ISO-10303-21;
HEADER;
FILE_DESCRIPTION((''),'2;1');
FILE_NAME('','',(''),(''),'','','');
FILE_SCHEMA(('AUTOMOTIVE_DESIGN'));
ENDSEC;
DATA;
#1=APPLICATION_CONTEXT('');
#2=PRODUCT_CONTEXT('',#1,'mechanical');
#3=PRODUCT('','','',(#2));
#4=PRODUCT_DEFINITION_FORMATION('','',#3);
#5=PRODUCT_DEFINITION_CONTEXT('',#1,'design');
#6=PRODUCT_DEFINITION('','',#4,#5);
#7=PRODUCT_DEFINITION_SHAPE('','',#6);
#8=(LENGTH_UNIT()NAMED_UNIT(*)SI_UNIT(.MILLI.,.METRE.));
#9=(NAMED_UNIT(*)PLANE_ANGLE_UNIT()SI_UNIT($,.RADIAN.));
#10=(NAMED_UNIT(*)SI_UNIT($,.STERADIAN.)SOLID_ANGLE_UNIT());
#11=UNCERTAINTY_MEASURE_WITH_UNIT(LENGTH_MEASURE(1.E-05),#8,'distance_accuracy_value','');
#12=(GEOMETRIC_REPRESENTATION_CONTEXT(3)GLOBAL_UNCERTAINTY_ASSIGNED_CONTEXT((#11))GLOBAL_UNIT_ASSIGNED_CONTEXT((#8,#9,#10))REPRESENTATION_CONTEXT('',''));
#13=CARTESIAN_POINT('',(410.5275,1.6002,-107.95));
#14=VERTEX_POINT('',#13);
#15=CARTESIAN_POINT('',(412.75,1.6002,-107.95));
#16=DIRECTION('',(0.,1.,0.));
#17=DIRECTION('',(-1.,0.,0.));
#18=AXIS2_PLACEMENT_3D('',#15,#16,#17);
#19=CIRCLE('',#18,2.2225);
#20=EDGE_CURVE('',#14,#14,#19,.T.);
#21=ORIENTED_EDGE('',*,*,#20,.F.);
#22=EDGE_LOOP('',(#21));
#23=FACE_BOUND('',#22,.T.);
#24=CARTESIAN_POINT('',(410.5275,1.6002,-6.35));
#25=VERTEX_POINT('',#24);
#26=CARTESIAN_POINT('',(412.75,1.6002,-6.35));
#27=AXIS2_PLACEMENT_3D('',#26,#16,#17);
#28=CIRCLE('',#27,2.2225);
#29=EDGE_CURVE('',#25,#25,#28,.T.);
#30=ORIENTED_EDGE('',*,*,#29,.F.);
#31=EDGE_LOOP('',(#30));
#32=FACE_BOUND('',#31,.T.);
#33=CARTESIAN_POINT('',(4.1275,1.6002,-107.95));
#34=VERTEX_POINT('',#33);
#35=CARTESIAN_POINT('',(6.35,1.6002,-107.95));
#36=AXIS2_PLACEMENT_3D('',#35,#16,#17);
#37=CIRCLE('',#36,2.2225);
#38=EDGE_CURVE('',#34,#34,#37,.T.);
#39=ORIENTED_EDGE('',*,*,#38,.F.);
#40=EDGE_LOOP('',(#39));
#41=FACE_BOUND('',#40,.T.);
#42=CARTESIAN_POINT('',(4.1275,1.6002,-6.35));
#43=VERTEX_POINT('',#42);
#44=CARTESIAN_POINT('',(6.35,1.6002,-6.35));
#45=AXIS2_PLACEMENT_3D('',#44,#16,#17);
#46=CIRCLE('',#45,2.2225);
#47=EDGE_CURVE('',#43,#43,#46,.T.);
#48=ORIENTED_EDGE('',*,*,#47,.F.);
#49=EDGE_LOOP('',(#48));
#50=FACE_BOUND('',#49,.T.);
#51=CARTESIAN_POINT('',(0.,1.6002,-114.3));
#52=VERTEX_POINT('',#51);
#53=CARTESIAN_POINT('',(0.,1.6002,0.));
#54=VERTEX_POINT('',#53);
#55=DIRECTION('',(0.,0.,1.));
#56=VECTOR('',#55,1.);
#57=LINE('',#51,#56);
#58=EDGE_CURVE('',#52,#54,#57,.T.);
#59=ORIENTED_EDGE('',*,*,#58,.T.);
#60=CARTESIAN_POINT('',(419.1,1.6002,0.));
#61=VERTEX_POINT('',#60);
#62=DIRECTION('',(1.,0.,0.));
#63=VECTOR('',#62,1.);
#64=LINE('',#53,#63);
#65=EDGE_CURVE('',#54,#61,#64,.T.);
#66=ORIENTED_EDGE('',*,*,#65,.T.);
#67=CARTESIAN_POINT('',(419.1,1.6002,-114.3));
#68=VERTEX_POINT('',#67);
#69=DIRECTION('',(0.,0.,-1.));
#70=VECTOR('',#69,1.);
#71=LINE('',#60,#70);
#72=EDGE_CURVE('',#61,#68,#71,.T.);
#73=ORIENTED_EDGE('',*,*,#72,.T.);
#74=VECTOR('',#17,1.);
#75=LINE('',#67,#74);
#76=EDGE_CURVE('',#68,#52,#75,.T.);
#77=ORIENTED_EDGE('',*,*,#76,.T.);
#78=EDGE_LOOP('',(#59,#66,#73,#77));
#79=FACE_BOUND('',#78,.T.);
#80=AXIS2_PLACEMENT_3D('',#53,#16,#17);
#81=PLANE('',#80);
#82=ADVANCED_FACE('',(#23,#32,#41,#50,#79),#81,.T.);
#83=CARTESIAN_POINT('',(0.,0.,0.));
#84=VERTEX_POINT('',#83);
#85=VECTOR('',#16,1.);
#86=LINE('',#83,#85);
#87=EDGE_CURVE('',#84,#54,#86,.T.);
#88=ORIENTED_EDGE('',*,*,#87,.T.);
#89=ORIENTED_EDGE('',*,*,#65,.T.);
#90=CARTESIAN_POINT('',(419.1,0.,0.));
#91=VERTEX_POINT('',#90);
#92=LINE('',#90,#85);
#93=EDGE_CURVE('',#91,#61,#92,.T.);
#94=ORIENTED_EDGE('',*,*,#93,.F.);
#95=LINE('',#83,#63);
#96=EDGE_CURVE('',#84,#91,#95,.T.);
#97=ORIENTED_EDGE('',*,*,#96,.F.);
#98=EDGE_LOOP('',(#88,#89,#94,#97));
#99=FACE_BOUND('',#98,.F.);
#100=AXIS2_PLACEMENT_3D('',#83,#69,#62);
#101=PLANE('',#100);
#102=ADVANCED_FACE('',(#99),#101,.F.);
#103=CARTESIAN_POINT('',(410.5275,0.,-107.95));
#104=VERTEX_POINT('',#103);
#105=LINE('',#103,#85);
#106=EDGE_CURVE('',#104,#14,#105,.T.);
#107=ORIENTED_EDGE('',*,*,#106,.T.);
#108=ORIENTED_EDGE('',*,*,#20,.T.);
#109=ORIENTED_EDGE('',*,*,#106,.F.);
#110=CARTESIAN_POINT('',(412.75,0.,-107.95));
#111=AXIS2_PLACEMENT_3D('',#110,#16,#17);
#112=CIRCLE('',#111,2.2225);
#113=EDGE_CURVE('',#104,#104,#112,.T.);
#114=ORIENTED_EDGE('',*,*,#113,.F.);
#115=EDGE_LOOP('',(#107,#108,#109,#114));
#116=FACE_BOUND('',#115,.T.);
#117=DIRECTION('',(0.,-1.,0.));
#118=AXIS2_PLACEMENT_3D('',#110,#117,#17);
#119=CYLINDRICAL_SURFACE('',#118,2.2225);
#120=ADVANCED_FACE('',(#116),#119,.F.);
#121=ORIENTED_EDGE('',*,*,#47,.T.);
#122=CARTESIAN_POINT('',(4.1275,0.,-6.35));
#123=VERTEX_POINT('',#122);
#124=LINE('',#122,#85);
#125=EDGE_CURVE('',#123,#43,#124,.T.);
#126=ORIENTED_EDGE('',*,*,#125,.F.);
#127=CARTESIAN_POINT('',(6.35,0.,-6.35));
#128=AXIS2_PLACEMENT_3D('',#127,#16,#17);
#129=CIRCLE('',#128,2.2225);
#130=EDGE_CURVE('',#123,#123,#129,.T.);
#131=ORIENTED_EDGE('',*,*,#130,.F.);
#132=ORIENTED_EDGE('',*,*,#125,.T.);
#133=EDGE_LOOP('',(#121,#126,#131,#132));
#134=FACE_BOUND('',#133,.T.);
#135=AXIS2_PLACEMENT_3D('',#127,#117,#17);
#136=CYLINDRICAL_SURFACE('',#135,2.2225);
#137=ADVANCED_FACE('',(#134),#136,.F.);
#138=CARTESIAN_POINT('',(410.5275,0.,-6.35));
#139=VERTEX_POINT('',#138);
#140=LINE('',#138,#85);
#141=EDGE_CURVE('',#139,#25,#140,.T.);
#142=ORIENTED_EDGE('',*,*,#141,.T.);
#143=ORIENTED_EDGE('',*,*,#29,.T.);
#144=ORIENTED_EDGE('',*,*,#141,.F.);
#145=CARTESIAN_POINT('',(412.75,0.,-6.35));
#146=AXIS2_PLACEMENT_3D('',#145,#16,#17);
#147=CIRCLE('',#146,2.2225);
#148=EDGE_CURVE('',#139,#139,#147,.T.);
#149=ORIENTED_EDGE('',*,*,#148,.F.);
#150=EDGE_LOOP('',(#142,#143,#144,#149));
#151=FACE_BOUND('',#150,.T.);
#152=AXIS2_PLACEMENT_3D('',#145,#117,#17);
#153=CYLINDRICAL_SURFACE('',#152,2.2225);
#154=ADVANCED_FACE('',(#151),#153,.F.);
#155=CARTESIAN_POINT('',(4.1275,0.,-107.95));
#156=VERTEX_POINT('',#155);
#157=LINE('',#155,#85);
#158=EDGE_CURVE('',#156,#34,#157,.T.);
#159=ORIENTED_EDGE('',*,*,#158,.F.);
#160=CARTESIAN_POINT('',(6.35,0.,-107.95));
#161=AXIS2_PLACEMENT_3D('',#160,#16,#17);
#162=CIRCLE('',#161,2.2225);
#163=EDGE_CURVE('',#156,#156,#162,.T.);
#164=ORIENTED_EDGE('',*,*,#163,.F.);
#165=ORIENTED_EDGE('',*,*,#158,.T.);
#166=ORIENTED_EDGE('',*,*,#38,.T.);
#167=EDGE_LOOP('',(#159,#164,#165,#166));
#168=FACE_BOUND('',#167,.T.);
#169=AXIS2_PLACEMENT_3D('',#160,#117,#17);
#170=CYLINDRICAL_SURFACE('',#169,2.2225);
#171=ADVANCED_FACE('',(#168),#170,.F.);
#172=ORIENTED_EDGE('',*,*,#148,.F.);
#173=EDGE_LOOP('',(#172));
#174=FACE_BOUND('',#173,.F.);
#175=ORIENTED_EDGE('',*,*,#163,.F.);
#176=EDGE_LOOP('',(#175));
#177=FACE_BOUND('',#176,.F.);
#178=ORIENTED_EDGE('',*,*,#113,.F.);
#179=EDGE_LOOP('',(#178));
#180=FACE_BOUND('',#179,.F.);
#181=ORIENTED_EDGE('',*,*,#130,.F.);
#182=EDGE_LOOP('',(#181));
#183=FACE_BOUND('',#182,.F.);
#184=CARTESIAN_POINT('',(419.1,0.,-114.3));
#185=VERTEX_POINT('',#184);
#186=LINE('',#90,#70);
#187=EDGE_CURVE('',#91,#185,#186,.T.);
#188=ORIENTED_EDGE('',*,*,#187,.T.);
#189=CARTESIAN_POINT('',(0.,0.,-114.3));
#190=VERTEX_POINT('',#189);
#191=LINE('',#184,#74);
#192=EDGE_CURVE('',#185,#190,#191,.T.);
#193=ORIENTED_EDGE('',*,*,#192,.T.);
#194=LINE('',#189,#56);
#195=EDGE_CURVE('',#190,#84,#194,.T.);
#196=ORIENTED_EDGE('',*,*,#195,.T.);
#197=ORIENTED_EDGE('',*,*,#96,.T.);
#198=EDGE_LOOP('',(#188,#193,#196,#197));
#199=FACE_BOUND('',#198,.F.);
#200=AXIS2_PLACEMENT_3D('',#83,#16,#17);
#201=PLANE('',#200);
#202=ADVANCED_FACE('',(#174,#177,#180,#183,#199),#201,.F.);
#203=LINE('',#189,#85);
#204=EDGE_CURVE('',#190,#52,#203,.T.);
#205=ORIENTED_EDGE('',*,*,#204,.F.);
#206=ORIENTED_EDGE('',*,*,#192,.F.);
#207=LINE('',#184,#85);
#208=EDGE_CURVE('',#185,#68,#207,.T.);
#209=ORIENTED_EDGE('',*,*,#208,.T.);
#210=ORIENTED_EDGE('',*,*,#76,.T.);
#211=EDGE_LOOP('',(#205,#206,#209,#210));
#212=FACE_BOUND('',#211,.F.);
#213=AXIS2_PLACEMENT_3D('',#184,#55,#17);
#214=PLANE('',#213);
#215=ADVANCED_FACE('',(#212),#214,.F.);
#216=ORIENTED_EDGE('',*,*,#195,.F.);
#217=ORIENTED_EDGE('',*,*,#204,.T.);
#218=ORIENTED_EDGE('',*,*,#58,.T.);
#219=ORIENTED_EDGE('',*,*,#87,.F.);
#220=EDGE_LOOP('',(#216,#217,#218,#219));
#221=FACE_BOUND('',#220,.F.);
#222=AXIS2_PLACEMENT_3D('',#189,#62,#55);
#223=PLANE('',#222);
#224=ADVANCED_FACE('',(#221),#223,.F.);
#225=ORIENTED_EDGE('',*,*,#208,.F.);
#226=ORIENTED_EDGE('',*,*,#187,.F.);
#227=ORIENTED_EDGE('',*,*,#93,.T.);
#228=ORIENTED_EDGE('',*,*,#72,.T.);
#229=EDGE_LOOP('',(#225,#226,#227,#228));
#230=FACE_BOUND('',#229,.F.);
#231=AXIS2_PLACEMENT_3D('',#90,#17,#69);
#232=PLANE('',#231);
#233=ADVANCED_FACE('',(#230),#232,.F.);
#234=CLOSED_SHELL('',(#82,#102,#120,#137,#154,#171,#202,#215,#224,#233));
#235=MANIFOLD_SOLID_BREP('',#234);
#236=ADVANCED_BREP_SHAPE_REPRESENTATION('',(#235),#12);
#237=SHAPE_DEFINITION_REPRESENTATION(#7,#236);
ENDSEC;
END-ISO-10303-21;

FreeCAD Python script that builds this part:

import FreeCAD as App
import Part
import Sketcher
Q = App.Units.Quantity


def add_polygon(sketch, points):
    """Adds a closed chain of lines whose ends are joined by coincident constraints."""
    first, n = sketch.GeometryCount, len(points)
    for a, b in zip(points, points[1:] + points[:1]):
        sketch.addGeometry(Part.LineSegment(App.Vector(*a, 0), App.Vector(*b, 0)), False)
    for i in range(n):
        sketch.addConstraint(Sketcher.Constraint("Coincident", first + i, 2, first + (i + 1) % n, 1))

doc = App.newDocument("Part")
body = doc.addObject("PartDesign::Body", "Body")

# Sketch on XZ plane
sketch1 = body.newObject("Sketcher::SketchObject", "Sketch")
sketch1.AttachmentSupport = (doc.getObject("XZ_Plane"), [""])
sketch1.MapMode = "FlatFace"
add_polygon(sketch1, [(0, -114.3), (0, 0), (419.1, 0), (419.1, -114.3)])  # lines 0-3
sketch1.addGeometry(Part.Circle(App.Vector(412.8, -108, 0), App.Vector(0, 0, 1), 2.2), False)  # 4
sketch1.addGeometry(Part.Circle(App.Vector(6.3, -108, 0), App.Vector(0, 0, 1), 2.2), False)  # 5
sketch1.addGeometry(Part.Circle(App.Vector(412.8, -6.3, 0), App.Vector(0, 0, 1), 2.2), False)  # 6
sketch1.addGeometry(Part.Circle(App.Vector(6.3, -6.3, 0), App.Vector(0, 0, 1), 2.2), False)  # 7
sketch1.addConstraint([
    Sketcher.Constraint("Vertical", 0),
    Sketcher.Constraint("Horizontal", 1),
    Sketcher.Constraint("Vertical", 2),
    Sketcher.Constraint("Horizontal", 3),
    Sketcher.Constraint("Coincident", 0, 2, -1, 1),
    Sketcher.Constraint("Equal", 4, 5),
    Sketcher.Constraint("Equal", 5, 6),
    Sketcher.Constraint("Equal", 6, 7),
    Sketcher.Constraint("Horizontal", 4, 3, 5, 3),
    Sketcher.Constraint("Horizontal", 6, 3, 7, 3),
    Sketcher.Constraint("Vertical", 4, 3, 6, 3),
    Sketcher.Constraint("Vertical", 5, 3, 7, 3),
    Sketcher.Constraint("Diameter", 4, Q("0.175 in")),
    Sketcher.Constraint("DistanceX", 1, 1, 1, 2, Q("16.5 in")),
    Sketcher.Constraint("DistanceY", 0, 1, 0, 2, Q("4.5 in")),
    Sketcher.Constraint("DistanceX", 5, 3, 4, 3, Q("16 in")),
    Sketcher.Constraint("DistanceY", 4, 3, 6, 3, Q("4 in")),
    Sketcher.Constraint("DistanceX", -1, 1, 4, 3, Q("16.25 in")),
    Sketcher.Constraint("DistanceY", 4, 3, -1, 1, Q("4.25 in")),
])
pad1 = body.newObject("PartDesign::Pad", "Pad")
pad1.Profile = sketch1
pad1.Length = Q("0.063 in")
pad1.Reversed = True

doc.recompute()
